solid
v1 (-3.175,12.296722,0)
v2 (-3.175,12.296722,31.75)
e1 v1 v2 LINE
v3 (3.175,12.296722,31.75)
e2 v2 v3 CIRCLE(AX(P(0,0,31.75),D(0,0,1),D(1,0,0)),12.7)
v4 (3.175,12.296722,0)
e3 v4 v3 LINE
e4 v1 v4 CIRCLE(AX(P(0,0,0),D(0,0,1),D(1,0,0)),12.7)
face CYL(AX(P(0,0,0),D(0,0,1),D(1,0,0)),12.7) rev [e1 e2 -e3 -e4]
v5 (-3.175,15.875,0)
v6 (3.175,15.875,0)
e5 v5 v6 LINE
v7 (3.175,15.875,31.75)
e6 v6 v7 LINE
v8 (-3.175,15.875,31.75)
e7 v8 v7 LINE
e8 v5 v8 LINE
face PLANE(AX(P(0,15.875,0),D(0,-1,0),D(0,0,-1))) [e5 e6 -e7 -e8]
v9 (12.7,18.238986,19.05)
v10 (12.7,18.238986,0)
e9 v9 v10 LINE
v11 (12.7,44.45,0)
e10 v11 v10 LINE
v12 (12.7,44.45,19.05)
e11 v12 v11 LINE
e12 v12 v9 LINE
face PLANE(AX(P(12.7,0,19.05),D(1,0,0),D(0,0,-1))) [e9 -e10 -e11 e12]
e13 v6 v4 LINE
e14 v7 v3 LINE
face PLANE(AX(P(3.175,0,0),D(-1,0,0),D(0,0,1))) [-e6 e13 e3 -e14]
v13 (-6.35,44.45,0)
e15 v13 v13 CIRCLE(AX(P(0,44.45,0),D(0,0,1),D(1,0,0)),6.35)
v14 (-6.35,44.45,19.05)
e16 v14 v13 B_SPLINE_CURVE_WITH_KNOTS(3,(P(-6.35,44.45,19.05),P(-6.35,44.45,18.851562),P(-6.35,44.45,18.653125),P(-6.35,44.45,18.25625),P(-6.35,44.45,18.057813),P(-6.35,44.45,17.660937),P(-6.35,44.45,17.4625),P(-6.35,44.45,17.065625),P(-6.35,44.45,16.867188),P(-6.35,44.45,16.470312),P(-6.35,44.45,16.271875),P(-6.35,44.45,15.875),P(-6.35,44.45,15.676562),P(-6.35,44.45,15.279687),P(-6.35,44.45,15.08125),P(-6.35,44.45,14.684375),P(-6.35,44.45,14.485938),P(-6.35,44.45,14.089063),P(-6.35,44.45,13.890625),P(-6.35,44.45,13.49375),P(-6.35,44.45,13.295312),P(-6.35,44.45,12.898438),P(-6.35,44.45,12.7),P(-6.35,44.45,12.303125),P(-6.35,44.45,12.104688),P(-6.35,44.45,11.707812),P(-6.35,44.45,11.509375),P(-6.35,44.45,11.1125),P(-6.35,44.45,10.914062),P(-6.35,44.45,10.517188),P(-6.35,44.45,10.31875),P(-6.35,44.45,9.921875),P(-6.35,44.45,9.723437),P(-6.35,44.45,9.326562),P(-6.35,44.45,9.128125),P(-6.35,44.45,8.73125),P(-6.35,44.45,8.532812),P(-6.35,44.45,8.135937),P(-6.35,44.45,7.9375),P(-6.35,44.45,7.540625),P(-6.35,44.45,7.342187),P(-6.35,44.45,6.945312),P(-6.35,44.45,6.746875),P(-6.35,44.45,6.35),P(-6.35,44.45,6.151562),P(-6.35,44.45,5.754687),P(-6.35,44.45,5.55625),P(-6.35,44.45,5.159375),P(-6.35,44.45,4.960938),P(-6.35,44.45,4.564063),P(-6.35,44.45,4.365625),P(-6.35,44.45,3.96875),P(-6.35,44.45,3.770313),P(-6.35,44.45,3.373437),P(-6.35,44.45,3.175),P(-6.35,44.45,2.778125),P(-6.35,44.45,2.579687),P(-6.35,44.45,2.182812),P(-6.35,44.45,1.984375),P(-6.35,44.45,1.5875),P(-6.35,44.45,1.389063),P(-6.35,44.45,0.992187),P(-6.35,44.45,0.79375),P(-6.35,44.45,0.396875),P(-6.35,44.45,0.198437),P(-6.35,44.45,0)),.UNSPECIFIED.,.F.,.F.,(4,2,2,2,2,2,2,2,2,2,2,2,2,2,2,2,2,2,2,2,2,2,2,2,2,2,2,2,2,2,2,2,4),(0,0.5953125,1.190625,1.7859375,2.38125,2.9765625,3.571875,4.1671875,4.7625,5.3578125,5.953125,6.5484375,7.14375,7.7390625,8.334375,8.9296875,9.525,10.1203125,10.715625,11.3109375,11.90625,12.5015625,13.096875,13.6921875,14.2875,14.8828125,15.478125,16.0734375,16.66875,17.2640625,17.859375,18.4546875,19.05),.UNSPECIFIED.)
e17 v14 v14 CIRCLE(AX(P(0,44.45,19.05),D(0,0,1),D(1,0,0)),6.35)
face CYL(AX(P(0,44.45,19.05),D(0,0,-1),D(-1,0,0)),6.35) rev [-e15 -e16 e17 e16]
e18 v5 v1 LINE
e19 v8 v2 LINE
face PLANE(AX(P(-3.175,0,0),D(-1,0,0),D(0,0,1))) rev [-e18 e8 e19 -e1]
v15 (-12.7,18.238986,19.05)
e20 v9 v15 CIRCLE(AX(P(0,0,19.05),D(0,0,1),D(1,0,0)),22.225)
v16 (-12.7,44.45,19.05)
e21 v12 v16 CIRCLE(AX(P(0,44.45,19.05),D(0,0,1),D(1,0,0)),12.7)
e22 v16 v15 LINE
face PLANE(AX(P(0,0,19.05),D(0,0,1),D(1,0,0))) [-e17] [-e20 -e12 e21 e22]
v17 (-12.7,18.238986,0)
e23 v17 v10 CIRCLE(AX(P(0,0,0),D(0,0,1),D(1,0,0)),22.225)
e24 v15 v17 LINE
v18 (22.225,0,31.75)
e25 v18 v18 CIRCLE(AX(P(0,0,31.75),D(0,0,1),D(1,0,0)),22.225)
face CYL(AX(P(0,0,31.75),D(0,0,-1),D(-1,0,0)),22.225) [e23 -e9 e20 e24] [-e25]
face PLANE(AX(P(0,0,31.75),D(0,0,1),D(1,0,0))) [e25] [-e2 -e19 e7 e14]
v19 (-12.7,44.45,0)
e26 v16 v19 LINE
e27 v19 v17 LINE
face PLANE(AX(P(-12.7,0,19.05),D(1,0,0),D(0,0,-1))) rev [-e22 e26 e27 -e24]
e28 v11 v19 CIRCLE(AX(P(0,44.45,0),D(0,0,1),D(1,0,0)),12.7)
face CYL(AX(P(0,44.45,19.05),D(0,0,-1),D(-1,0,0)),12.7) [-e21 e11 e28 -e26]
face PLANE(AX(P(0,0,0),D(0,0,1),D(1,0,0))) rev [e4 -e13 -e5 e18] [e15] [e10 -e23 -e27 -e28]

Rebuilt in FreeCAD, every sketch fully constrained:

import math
import FreeCAD as App
import Part
import Sketcher

V = App.Vector
Q = App.Units.Quantity

doc = App.newDocument("Part")
body = doc.addObject("PartDesign::Body", "Body")

# Sketch on XY plane
sketch1 = doc.addObject("Sketcher::SketchObject", "Sketch")
body.addObject(sketch1)
sketch1.AttachmentSupport = (doc.XY_Plane, [""])
sketch1.MapMode = "FlatFace"
sketch1.addGeometry(Part.Circle(V(0, 0, 0), V(0, 0, 1), 22), False)
sketch1.addConstraint([
    Sketcher.Constraint("Coincident", 0, 3, -1, 1),
    Sketcher.Constraint("Diameter", 0, Q("1.75 in")),
])
pad1 = doc.addObject("PartDesign::Pad", "Pad")
body.addObject(pad1)
pad1.Profile = sketch1
pad1.Length = Q("1.25 in")

# Sketch on XY plane
sketch2 = doc.addObject("Sketcher::SketchObject", "Sketch001")
body.addObject(sketch2)
sketch2.AttachmentSupport = (doc.XY_Plane, [""])
sketch2.MapMode = "FlatFace"
sketch2.addGeometry([
    Part.ArcOfCircle(Part.Circle(V(0, 44, 0), V(0, 0, 1), 13), math.radians(0), math.radians(180)),  # 0
    Part.LineSegment(V(-13, 44, 0), V(-13, 18, 0)),  # 1
    Part.ArcOfCircle(Part.Circle(V(0, 0, 0), V(0, 0, 1), 22), math.radians(55), math.radians(125)),  # 2
    Part.LineSegment(V(13, 18, 0), V(13, 44, 0)),  # 3
    Part.Circle(V(0, 44, 0), V(0, 0, 1), 6),  # 4
], False)
sketch2.addConstraint([
    Sketcher.Constraint("Tangent", 0, 2, 1, 1),
    Sketcher.Constraint("Coincident", 1, 2, 2, 2),
    Sketcher.Constraint("Coincident", 2, 1, 3, 1),
    Sketcher.Constraint("Tangent", 3, 2, 0, 1),
    Sketcher.Constraint("Vertical", 1),
    Sketcher.Constraint("Vertical", 3),
    Sketcher.Constraint("Coincident", 2, 3, -1, 1),
    Sketcher.Constraint("Coincident", 4, 3, 0, 3),
    Sketcher.Constraint("PointOnObject", 0, 3, -2),
    Sketcher.Constraint("Diameter", 4, Q("0.5 in")),
    Sketcher.Constraint("Radius", 0, Q("0.5 in")),
    Sketcher.Constraint("Radius", 2, Q("0.875 in")),
    Sketcher.Constraint("DistanceY", -1, 1, 0, 3, Q("1.75 in")),
])
pad2 = doc.addObject("PartDesign::Pad", "Pad001")
body.addObject(pad2)
pad2.Profile = sketch2
pad2.Length = Q("0.75 in")

# Sketch on XY plane
sketch3 = doc.addObject("Sketcher::SketchObject", "Sketch002")
body.addObject(sketch3)
sketch3.AttachmentSupport = (doc.XY_Plane, [""])
sketch3.MapMode = "FlatFace"
sketch3.AttachmentOffset = App.Placement(V(0, 0, 1.25 * 25.4), App.Rotation())
sketch3.addGeometry([
    Part.ArcOfCircle(Part.Circle(V(0, 0, 0), V(0, 0, 1), 12.7), math.radians(-90), math.radians(76)),  # 0
    Part.LineSegment(V(3.2, 12.3, 0), V(3.2, 15.9, 0)),  # 1
    Part.LineSegment(V(3.2, 15.9, 0), V(-3.2, 15.9, 0)),  # 2
    Part.LineSegment(V(-3.2, 15.9, 0), V(-3.2, 12.3, 0)),  # 3
    Part.ArcOfCircle(Part.Circle(V(0, 0, 0), V(0, 0, 1), 12.7), math.radians(104), math.radians(270)),  # 4
], False)
sketch3.addConstraint([
    Sketcher.Constraint("Coincident", 0, 2, 1, 1),
    Sketcher.Constraint("Coincident", 1, 2, 2, 1),
    Sketcher.Constraint("Coincident", 2, 2, 3, 1),
    Sketcher.Constraint("Coincident", 3, 2, 4, 1),
    Sketcher.Constraint("Tangent", 4, 2, 0, 1),
    Sketcher.Constraint("Vertical", 1),
    Sketcher.Constraint("Horizontal", 2),
    Sketcher.Constraint("Vertical", 3),
    Sketcher.Constraint("Coincident", 0, 3, -1, 1),
    Sketcher.Constraint("Equal", 0, 4),
    Sketcher.Constraint("PointOnObject", 4, 2, -2),
    Sketcher.Constraint("Horizontal", 0, 2, 3, 2),
    Sketcher.Constraint("Radius", 0, Q("0.5 in")),
    Sketcher.Constraint("DistanceX", 2, 2, 2, 1, Q("0.25 in")),
    Sketcher.Constraint("DistanceY", -1, 1, 1, 2, Q("0.625 in")),
])
pocket1 = doc.addObject("PartDesign::Pocket", "Pocket")
body.addObject(pocket1)
pocket1.Profile = sketch3
pocket1.Type = "ThroughAll"

doc.recompute()
